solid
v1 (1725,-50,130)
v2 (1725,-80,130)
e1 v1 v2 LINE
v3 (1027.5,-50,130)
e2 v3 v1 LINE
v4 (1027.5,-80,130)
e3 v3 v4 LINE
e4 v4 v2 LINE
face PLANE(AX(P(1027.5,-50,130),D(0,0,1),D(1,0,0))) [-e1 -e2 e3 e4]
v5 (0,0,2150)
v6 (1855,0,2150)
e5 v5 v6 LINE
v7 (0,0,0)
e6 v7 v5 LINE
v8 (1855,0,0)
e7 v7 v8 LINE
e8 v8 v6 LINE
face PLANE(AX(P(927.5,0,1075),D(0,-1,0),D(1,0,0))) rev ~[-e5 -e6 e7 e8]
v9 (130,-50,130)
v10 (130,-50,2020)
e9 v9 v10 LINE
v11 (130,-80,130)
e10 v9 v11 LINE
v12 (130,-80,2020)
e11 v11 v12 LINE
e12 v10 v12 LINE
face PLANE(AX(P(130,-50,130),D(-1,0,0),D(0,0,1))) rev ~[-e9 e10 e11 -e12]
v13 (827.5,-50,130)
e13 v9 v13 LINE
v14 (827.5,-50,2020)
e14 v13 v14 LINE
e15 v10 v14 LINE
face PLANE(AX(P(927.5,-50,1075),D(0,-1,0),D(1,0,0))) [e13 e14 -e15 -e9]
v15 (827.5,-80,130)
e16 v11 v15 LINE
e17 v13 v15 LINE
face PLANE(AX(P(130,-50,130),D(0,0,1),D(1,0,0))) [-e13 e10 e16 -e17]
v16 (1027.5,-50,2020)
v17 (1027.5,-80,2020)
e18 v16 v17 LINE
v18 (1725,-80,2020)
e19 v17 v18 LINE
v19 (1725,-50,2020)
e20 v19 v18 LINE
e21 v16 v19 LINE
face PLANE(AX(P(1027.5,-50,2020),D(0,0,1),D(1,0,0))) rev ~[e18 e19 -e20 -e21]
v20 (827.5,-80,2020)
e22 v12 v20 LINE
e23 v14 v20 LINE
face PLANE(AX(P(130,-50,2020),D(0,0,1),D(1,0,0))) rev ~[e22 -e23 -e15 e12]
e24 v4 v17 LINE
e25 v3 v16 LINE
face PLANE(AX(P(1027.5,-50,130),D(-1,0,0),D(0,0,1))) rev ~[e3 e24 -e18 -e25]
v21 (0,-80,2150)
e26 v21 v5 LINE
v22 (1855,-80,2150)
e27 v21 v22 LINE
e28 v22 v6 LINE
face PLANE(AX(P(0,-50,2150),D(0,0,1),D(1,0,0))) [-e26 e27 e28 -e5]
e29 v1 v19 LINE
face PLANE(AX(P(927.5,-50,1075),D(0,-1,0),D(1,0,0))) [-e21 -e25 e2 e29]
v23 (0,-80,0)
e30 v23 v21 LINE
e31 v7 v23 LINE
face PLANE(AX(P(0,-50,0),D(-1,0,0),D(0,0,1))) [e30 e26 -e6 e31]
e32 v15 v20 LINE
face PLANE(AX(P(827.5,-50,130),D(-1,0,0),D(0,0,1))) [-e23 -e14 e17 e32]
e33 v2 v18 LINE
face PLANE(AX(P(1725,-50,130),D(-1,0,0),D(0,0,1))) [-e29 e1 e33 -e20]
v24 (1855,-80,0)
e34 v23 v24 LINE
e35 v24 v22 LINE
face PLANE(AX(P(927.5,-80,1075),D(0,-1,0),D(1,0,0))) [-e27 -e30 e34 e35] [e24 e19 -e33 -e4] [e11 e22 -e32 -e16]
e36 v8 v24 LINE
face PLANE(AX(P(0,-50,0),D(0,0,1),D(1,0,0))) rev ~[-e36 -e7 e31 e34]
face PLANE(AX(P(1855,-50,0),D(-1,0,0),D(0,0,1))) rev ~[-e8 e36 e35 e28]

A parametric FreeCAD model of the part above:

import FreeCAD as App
import Part
import Sketcher
from FreeCAD import Vector
Q = App.Units.Quantity


def add_polygon(sketch, points):
    """Adds a closed chain of lines whose ends are joined by coincident constraints."""
    first, n = sketch.GeometryCount, len(points)
    for a, b in zip(points, points[1:] + points[:1]):
        sketch.addGeometry(Part.LineSegment(App.Vector(*a, 0), App.Vector(*b, 0)), False)
    for i in range(n):
        sketch.addConstraint(Sketcher.Constraint("Coincident", first + i, 2, first + (i + 1) % n, 1))

doc = App.newDocument("Part")
body = doc.addObject("PartDesign::Body", "Body")

# Sketch on XZ plane
sketch1 = body.newObject("Sketcher::SketchObject", "Sketch")
sketch1.AttachmentSupport = (doc.getObject("XZ_Plane"), [""])
sketch1.MapMode = "FlatFace"
add_polygon(sketch1, [(0, 2150), (0, 0), (1855, 0), (1855, 2150)])  # lines 0-3
sketch1.addConstraint(Sketcher.Constraint("Vertical", 0))
sketch1.addConstraint(Sketcher.Constraint("Horizontal", 1))
sketch1.addConstraint(Sketcher.Constraint("Vertical", 2))
sketch1.addConstraint(Sketcher.Constraint("Horizontal", 3))
sketch1.addConstraint(Sketcher.Constraint("Coincident", 0, 2, -1, 1))
sketch1.addConstraint(Sketcher.Constraint("DistanceX", 1, 1, 1, 2, Q("1855 mm")))
sketch1.addConstraint(Sketcher.Constraint("DistanceY", 0, 2, 0, 1, Q("2150 mm")))
pad1 = body.newObject("PartDesign::Pad", "Pad")
pad1.Profile = sketch1
pad1.Length = 50

# Sketch on XZ plane
sketch2 = body.newObject("Sketcher::SketchObject", "Sketch001")
sketch2.AttachmentSupport = (doc.getObject("XZ_Plane"), [""])
sketch2.MapMode = "FlatFace"
sketch2.AttachmentOffset = App.Placement(Vector(0, 0, 50), App.Rotation())
add_polygon(sketch2, [(0, 2150), (0, 0), (1855, 0), (1855, 2150)])  # lines 0-3
add_polygon(sketch2, [(828, 130), (130, 130), (130, 2020), (828, 2020)])  # lines 4-7
add_polygon(sketch2, [(1725, 130), (1028, 130), (1028, 2020), (1725, 2020)])  # lines 8-11
sketch2.addConstraint(Sketcher.Constraint("Vertical", 0))
sketch2.addConstraint(Sketcher.Constraint("Horizontal", 1))
sketch2.addConstraint(Sketcher.Constraint("Vertical", 2))
sketch2.addConstraint(Sketcher.Constraint("Horizontal", 3))
sketch2.addConstraint(Sketcher.Constraint("Horizontal", 4))
sketch2.addConstraint(Sketcher.Constraint("Vertical", 5))
sketch2.addConstraint(Sketcher.Constraint("Horizontal", 6))
sketch2.addConstraint(Sketcher.Constraint("Vertical", 7))
sketch2.addConstraint(Sketcher.Constraint("Horizontal", 8))
sketch2.addConstraint(Sketcher.Constraint("Vertical", 9))
sketch2.addConstraint(Sketcher.Constraint("Horizontal", 10))
sketch2.addConstraint(Sketcher.Constraint("Vertical", 11))
sketch2.addConstraint(Sketcher.Constraint("Coincident", 0, 2, -1, 1))
sketch2.addConstraint(Sketcher.Constraint("Horizontal", 7, 2, 8, 2))
sketch2.addConstraint(Sketcher.Constraint("Horizontal", 6, 2, 9, 2))
sketch2.addConstraint(Sketcher.Constraint("Equal", 6, 8))
sketch2.addConstraint(Sketcher.Constraint("DistanceX", 1, 1, 1, 2, Q("1855 mm")))
sketch2.addConstraint(Sketcher.Constraint("DistanceY", 0, 2, 0, 1, Q("2150 mm")))
sketch2.addConstraint(Sketcher.Constraint("DistanceY", 5, 1, 5, 2, Q("1890 mm")))
sketch2.addConstraint(Sketcher.Constraint("DistanceX", 4, 2, 4, 1, Q("697.5 mm")))
sketch2.addConstraint(Sketcher.Constraint("DistanceX", -1, 1, 4, 2, Q("130 mm")))
sketch2.addConstraint(Sketcher.Constraint("DistanceY", -1, 1, 4, 2, Q("130 mm")))
sketch2.addConstraint(Sketcher.Constraint("DistanceX", -1, 1, 10, 2, Q("1725 mm")))
pad2 = body.newObject("PartDesign::Pad", "Pad001")
pad2.Profile = sketch2
pad2.Length = 30

doc.recompute()
